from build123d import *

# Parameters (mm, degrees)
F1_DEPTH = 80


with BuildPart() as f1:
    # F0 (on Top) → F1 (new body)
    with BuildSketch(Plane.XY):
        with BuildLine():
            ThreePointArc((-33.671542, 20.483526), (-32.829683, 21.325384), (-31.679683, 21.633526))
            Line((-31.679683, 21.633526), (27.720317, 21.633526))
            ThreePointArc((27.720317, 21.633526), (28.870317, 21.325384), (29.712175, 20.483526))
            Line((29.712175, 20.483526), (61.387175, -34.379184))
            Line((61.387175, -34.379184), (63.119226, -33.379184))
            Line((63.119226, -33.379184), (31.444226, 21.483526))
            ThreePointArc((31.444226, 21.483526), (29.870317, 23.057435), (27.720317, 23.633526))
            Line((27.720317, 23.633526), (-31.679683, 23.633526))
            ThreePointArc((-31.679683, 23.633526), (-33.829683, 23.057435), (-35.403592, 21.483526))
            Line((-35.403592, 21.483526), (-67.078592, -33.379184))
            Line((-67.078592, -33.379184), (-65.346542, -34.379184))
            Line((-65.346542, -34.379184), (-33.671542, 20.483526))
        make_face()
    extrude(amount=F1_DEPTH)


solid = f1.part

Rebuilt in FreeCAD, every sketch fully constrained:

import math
import FreeCAD as App
import Part
import Sketcher

V = App.Vector
Q = App.Units.Quantity

doc = App.newDocument("Part")
params = doc.addObject("Spreadsheet::Sheet", "Params")
for row, (alias, value) in enumerate([
    ("sketch1_radius", "2.300001 mm"),
    ("sketch1_radius2", "4.300001 mm"),
    ("sketch1_width", "59.4 mm"),
    ("sketch1_length", "63.350001 mm"),
    ("pad1_length", "80 mm"),
], start=1):
    params.set(f"A{row}", alias)
    params.set(f"B{row}", "=" + value)
    params.setAlias(f"B{row}", alias)

body = doc.addObject("PartDesign::Body", "Body")

sketch1 = body.newObject("Sketcher::SketchObject", "Sketch")
sketch1.AttachmentSupport = (doc.getObject("XY_Plane"), [""])
sketch1.MapMode = "FlatFace"
sketch1.addGeometry([
    Part.ArcOfCircle(Part.Circle(V(-31.7, 19.3, 0), V(0, 0, 1), 2.3), math.radians(90), math.radians(150)),
    Part.LineSegment(V(-31.7, 21.6, 0), V(27.7, 21.6, 0)),
    Part.ArcOfCircle(Part.Circle(V(27.7, 19.3, 0), V(0, 0, 1), 2.3), math.radians(30), math.radians(90)),
    Part.LineSegment(V(29.7, 20.5, 0), V(61.4, -34.4, 0)),
    Part.LineSegment(V(61.4, -34.4, 0), V(63.1, -33.4, 0)),
    Part.LineSegment(V(63.1, -33.4, 0), V(31.4, 21.5, 0)),
    Part.ArcOfCircle(Part.Circle(V(27.7, 19.3, 0), V(0, 0, 1), 4.3), math.radians(30), math.radians(90)),
    Part.LineSegment(V(27.7, 23.6, 0), V(-31.7, 23.6, 0)),
    Part.ArcOfCircle(Part.Circle(V(-31.7, 19.3, 0), V(0, 0, 1), 4.3), math.radians(90), math.radians(150)),
    Part.LineSegment(V(-35.4, 21.5, 0), V(-67.1, -33.4, 0)),
    Part.LineSegment(V(-67.1, -33.4, 0), V(-65.3, -34.4, 0)),
    Part.LineSegment(V(-65.3, -34.4, 0), V(-33.7, 20.5, 0)),
], False)
sketch1.addConstraint([
    Sketcher.Constraint("Tangent", 0, 1, 1, 1),
    Sketcher.Constraint("Tangent", 1, 2, 2, 2),
    Sketcher.Constraint("Tangent", 2, 1, 3, 1),
    Sketcher.Constraint("Coincident", 3, 2, 4, 1),
    Sketcher.Constraint("Coincident", 4, 2, 5, 1),
    Sketcher.Constraint("Tangent", 5, 2, 6, 1),
    Sketcher.Constraint("Tangent", 6, 2, 7, 1),
    Sketcher.Constraint("Tangent", 7, 2, 8, 1),
    Sketcher.Constraint("Tangent", 8, 2, 9, 1),
    Sketcher.Constraint("Coincident", 9, 2, 10, 1),
    Sketcher.Constraint("Coincident", 10, 2, 11, 1),
    Sketcher.Constraint("Tangent", 11, 2, 0, 2),
    Sketcher.Constraint("Horizontal", 1),
    Sketcher.Constraint("Horizontal", 7),
    Sketcher.Constraint("Coincident", 6, 3, 2, 3),
    Sketcher.Constraint("Coincident", 8, 3, 0, 3),
    Sketcher.Constraint("Equal", 6, 8),
    Sketcher.Constraint("Perpendicular", 3, 4),
    Sketcher.Constraint("Perpendicular", 4, 5),
    Sketcher.Constraint("Perpendicular", 9, 10),
    Sketcher.Constraint("Perpendicular", 10, 11),
    Sketcher.Constraint("Horizontal", 5, 2, 8, 2),
    Sketcher.Constraint("Horizontal", 4, 2, 9, 2),
    Sketcher.Constraint("Radius", 2, Q("2.300001 mm")),
    Sketcher.Constraint("Radius", 6, Q("4.300001 mm")),
    Sketcher.Constraint("Angle", 3, Q("-60 deg")),
    Sketcher.Constraint("DistanceX", 1, 1, 1, 2, Q("59.4 mm")),
    Sketcher.Constraint("Distance", 3, Q("63.350001 mm")),
    Sketcher.Constraint("DistanceX", 0, 3, -1, 1, Q("31.679681 mm")),
    Sketcher.Constraint("DistanceY", -1, 1, 0, 3, Q("19.333522 mm")),
])
sketch1.setExpression("Constraints[23]", "Params.sketch1_radius")
sketch1.setExpression("Constraints[24]", "Params.sketch1_radius2")
sketch1.setExpression("Constraints[26]", "Params.sketch1_width")
sketch1.setExpression("Constraints[27]", "Params.sketch1_length")
pad1 = body.newObject("PartDesign::Pad", "Pad")
pad1.Profile = sketch1
pad1.setExpression("Length", "Params.pad1_length")

doc.recompute()
